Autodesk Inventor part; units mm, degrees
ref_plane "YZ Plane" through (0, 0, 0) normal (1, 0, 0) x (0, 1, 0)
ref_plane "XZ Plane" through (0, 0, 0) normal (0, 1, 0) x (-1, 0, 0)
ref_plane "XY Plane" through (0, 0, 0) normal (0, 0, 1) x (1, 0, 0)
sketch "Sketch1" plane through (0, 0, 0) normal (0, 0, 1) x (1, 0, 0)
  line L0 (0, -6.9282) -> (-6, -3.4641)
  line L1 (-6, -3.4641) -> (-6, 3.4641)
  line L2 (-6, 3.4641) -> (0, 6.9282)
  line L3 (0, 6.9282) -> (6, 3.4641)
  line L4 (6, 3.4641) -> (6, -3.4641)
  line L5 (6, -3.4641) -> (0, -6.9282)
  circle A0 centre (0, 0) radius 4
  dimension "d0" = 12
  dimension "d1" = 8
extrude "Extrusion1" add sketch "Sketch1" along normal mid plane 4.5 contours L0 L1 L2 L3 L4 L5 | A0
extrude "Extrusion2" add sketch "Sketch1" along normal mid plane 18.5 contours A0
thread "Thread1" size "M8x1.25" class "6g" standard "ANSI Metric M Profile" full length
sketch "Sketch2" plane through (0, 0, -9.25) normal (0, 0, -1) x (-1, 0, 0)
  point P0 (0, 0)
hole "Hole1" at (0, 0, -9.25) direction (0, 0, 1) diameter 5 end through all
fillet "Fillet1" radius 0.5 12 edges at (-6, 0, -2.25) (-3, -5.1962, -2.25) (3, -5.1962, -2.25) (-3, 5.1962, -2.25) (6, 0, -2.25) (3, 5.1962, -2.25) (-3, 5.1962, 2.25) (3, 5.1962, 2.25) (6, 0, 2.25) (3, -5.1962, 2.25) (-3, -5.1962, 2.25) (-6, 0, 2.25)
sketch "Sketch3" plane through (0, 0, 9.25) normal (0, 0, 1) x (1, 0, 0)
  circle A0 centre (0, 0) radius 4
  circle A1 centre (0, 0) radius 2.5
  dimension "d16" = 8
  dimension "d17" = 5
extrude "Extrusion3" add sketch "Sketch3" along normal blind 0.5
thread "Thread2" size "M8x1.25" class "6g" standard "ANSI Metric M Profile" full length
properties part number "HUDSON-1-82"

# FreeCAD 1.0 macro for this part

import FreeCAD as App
import Part
import Sketcher

V = App.Vector
Q = App.Units.Quantity


def edges_at(feature, points):
    """Names of the edges that pass closest to the given points."""
    edges = feature.Shape.Edges
    near = lambda p: min(range(len(edges)), key=lambda i: edges[i].distToShape(Part.Vertex(*p))[0])
    return sorted({f"Edge{near(p) + 1}" for p in points})

doc = App.newDocument("Part")
body = doc.addObject("PartDesign::Body", "Body")

# Sketch on XY plane
sketch1 = body.newObject("Sketcher::SketchObject", "Sketch")
sketch1.AttachmentSupport = (doc.getObject("XY_Plane"), [""])
sketch1.MapMode = "FlatFace"
sketch1.addGeometry(Part.LineSegment(V(-6, -3.4641, 0), V(0, -6.9282, 0)), False)
sketch1.addGeometry(Part.LineSegment(V(0, -6.9282, 0), V(6, -3.4641, 0)), False)
sketch1.addGeometry(Part.LineSegment(V(6, -3.4641, 0), V(6, 3.4641, 0)), False)
sketch1.addGeometry(Part.LineSegment(V(6, 3.4641, 0), V(0, 6.9282, 0)), False)
sketch1.addGeometry(Part.LineSegment(V(0, 6.9282, 0), V(-6, 3.4641, 0)), False)
sketch1.addGeometry(Part.LineSegment(V(-6, 3.4641, 0), V(-6, -3.4641, 0)), False)
sketch1.addConstraint(Sketcher.Constraint("Coincident", 0, 2, 1, 1))
sketch1.addConstraint(Sketcher.Constraint("Coincident", 1, 2, 2, 1))
sketch1.addConstraint(Sketcher.Constraint("Coincident", 2, 2, 3, 1))
sketch1.addConstraint(Sketcher.Constraint("Coincident", 3, 2, 4, 1))
sketch1.addConstraint(Sketcher.Constraint("Coincident", 4, 2, 5, 1))
sketch1.addConstraint(Sketcher.Constraint("Coincident", 5, 2, 0, 1))
sketch1.addConstraint(Sketcher.Constraint("Vertical", 2))
sketch1.addConstraint(Sketcher.Constraint("Vertical", 5))
sketch1.addConstraint(Sketcher.Constraint("Symmetric", 0, 2, 3, 2, -1, 1))
sketch1.addConstraint(Sketcher.Constraint("Symmetric", 1, 2, 4, 2, -1, 1))
sketch1.addConstraint(Sketcher.Constraint("PointOnObject", 0, 2, -2))
sketch1.addConstraint(Sketcher.Constraint("Parallel", 0, 3))
sketch1.addConstraint(Sketcher.Constraint("Horizontal", 2, 2, 4, 2))
sketch1.addConstraint(Sketcher.Constraint("DistanceX", 4, 2, 2, 2, 12.0))
sketch1.addConstraint(Sketcher.Constraint("Angle", 0, Q("-30 deg")))
sketch1.addConstraint(Sketcher.Constraint("DistanceY", 2, 1, 2, 2, 6.9282))
pad1 = body.newObject("PartDesign::Pad", "Pad")
pad1.Profile = sketch1
pad1.Length = 4.5
pad1.Midplane = True

# Sketch on XY plane
sketch2 = body.newObject("Sketcher::SketchObject", "Sketch001")
sketch2.AttachmentSupport = (doc.getObject("XY_Plane"), [""])
sketch2.MapMode = "FlatFace"
sketch2.addGeometry(Part.Circle(V(0, 0, 0), V(0, 0, 1), 4), False)
sketch2.addConstraint(Sketcher.Constraint("Coincident", 0, 3, -1, 1))
sketch2.addConstraint(Sketcher.Constraint("Diameter", 0, 8.0))
pad2 = body.newObject("PartDesign::Pad", "Pad001")
pad2.Profile = sketch2
pad2.Length = 18.5
pad2.Midplane = True

# Sketch on XY plane
sketch3 = body.newObject("Sketcher::SketchObject", "Sketch002")
sketch3.AttachmentSupport = (doc.getObject("XY_Plane"), [""])
sketch3.MapMode = "FlatFace"
sketch3.AttachmentOffset = App.Placement(V(0, 0, -9.25), App.Rotation())
sketch3.addGeometry(Part.Circle(V(0, 0, 0), V(0, 0, 1), 2.5), False)
sketch3.addConstraint(Sketcher.Constraint("Coincident", 0, 3, -1, 1))
sketch3.addConstraint(Sketcher.Constraint("Diameter", 0, 5.0))
doc.recompute()
hole = body.newObject("PartDesign::Hole", "Hole")
hole.Profile = sketch3
hole.ThreadType = "None"
hole.Diameter = 5
hole.DepthType = "ThroughAll"
hole.Reversed = True
doc.recompute()

fillet = body.newObject("PartDesign::Fillet", "Fillet")
fillet.Base = (hole, edges_at(hole, [
    (-6, 0, -2.25),
    (-3, -5.196, -2.25),
    (3, -5.196, -2.25),
    (-3, 5.196, -2.25),
    (6, 0, -2.25),
    (3, 5.196, -2.25),
    (-3, 5.196, 2.25),
    (3, 5.196, 2.25),
    (6, 0, 2.25),
    (3, -5.196, 2.25),
    (-3, -5.196, 2.25),
    (-6, 0, 2.25),
]))
fillet.Radius = 0.5

# Sketch on XY plane
sketch4 = body.newObject("Sketcher::SketchObject", "Sketch003")
sketch4.AttachmentSupport = (doc.getObject("XY_Plane"), [""])
sketch4.MapMode = "FlatFace"
sketch4.AttachmentOffset = App.Placement(V(0, 0, 9.25), App.Rotation())
sketch4.addGeometry(Part.Circle(V(0, 0, 0), V(0, 0, 1), 4), False)
sketch4.addGeometry(Part.Circle(V(0, 0, 0), V(0, 0, 1), 2.5), False)
sketch4.addConstraint(Sketcher.Constraint("Coincident", 0, 3, -1, 1))
sketch4.addConstraint(Sketcher.Constraint("Coincident", 1, 3, -1, 1))
sketch4.addConstraint(Sketcher.Constraint("Diameter", 0, 8.0))
sketch4.addConstraint(Sketcher.Constraint("Diameter", 1, 5.0))
pad3 = body.newObject("PartDesign::Pad", "Pad002")
pad3.Profile = sketch4
pad3.Length = 0.5

doc.recompute()
